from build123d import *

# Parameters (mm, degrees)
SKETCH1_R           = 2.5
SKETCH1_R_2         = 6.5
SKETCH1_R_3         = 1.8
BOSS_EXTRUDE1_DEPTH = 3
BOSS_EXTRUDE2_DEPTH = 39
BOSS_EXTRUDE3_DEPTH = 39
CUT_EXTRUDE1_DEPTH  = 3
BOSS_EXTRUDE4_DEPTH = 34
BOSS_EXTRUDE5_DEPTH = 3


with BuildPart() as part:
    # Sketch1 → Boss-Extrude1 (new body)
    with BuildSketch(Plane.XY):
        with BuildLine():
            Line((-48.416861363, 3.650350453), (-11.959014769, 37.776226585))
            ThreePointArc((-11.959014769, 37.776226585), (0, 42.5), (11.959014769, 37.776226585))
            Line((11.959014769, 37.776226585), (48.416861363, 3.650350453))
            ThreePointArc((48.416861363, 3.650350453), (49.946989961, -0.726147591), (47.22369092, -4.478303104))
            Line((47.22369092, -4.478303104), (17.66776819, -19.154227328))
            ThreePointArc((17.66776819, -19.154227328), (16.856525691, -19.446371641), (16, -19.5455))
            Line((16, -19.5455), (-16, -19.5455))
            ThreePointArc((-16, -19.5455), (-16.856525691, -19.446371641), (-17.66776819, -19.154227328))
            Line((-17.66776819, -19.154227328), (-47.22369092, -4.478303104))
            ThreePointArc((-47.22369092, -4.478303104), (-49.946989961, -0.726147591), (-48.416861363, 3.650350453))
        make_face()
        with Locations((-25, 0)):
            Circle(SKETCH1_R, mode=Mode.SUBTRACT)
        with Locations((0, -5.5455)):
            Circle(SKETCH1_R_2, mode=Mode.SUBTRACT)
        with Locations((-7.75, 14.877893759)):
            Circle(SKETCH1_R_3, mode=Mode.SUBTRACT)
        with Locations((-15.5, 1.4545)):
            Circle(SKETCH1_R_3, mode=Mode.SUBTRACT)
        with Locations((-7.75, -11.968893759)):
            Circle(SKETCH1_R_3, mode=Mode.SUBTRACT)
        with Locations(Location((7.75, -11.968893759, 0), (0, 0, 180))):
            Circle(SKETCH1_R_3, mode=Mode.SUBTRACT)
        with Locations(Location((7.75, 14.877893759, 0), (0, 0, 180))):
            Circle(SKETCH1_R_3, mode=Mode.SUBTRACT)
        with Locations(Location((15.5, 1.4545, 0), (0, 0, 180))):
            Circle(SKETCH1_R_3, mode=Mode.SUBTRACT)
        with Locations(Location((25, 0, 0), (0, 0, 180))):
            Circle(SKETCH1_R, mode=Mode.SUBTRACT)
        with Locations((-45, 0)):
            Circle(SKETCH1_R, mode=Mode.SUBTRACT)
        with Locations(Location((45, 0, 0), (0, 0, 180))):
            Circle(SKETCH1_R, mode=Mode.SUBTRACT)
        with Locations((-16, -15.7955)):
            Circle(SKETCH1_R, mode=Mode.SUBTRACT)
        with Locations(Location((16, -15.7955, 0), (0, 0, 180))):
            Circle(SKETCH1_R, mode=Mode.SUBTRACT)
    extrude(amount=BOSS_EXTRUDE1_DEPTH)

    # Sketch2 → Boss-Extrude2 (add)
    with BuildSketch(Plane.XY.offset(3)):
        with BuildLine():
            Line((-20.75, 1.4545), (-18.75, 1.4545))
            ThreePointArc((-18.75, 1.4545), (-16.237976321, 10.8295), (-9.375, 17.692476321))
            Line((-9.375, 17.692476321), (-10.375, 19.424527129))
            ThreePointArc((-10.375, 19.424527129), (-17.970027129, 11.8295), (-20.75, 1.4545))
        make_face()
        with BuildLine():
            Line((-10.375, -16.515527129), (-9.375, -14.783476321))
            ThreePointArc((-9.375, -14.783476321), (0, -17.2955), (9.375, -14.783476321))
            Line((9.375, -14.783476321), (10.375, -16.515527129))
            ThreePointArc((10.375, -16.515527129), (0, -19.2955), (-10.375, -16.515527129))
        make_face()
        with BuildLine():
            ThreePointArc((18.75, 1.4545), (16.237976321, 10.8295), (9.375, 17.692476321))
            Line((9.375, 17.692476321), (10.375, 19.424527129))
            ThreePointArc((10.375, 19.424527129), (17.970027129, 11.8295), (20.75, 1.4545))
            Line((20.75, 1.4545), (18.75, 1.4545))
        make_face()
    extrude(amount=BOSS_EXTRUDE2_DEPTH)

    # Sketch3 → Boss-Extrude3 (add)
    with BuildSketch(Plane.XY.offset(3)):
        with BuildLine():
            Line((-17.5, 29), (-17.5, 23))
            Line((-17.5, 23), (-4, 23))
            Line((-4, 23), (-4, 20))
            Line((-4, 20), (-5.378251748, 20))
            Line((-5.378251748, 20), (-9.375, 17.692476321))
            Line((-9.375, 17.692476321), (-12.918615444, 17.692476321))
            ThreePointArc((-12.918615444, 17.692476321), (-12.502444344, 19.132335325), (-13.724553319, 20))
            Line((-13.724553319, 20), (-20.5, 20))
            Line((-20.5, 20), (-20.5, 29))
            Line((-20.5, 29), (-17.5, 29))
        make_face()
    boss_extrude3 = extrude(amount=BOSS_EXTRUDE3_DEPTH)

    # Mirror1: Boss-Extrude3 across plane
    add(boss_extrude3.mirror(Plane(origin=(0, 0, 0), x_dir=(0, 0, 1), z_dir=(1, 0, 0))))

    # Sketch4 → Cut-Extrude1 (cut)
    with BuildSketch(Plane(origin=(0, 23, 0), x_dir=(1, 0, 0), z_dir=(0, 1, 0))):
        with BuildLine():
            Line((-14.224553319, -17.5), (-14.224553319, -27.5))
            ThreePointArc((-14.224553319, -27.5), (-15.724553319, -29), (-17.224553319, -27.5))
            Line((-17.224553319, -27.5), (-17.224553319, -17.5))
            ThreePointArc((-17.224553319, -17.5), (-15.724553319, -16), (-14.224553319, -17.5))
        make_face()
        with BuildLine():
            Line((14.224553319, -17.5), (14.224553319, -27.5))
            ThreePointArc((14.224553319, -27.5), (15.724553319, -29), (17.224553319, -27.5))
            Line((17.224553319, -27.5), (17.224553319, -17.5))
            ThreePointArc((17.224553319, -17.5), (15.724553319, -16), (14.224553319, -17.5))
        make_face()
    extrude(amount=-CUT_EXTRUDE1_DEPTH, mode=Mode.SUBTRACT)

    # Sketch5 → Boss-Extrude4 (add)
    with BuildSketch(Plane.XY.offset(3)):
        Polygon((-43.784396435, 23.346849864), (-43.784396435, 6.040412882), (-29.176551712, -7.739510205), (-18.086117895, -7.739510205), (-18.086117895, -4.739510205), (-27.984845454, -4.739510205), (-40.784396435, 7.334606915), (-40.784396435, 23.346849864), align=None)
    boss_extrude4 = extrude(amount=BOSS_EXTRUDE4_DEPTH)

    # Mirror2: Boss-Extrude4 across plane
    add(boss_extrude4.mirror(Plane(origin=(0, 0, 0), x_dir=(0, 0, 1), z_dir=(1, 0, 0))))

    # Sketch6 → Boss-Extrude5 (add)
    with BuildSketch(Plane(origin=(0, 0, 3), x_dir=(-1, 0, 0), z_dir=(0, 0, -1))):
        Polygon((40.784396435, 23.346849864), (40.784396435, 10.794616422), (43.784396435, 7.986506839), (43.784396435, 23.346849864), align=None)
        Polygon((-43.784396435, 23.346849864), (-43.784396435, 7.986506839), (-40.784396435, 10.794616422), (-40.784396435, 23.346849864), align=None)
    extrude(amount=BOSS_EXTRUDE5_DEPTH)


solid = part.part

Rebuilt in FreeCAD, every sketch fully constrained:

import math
import FreeCAD as App
import Part
import Sketcher
from FreeCAD import Vector
Q = App.Units.Quantity


def add_polygon(sketch, points):
    """Adds a closed chain of lines whose ends are joined by coincident constraints."""
    first, n = sketch.GeometryCount, len(points)
    for a, b in zip(points, points[1:] + points[:1]):
        sketch.addGeometry(Part.LineSegment(App.Vector(*a, 0), App.Vector(*b, 0)), False)
    for i in range(n):
        sketch.addConstraint(Sketcher.Constraint("Coincident", first + i, 2, first + (i + 1) % n, 1))

doc = App.newDocument("Part")
body = doc.addObject("PartDesign::Body", "Body")

sketch1 = doc.addObject("Sketcher::SketchObject", "Sketch")
body.addObject(sketch1)
sketch1.AttachmentSupport = (doc.XY_Plane, [""])
sketch1.MapMode = "FlatFace"
sketch1.addGeometry(Part.LineSegment(Vector(-12, 37.8, 0), Vector(-48.4, 3.7, 0)), False)
sketch1.addGeometry(Part.ArcOfCircle(Part.Circle(Vector(-45, 0, 0), Vector(0, 0, 1), 5), math.radians(133), math.radians(244)), False)
sketch1.addGeometry(Part.LineSegment(Vector(-47.2, -4.5, 0), Vector(-17.7, -19.2, 0)), False)
sketch1.addGeometry(Part.ArcOfCircle(Part.Circle(Vector(-16, -15.8, 0), Vector(0, 0, 1), 3.8), math.radians(-116), math.radians(-90)), False)
sketch1.addGeometry(Part.LineSegment(Vector(-16, -19.5, 0), Vector(16, -19.5, 0)), False)
sketch1.addGeometry(Part.ArcOfCircle(Part.Circle(Vector(16, -15.8, 0), Vector(0, 0, 1), 3.8), math.radians(-90), math.radians(-64)), False)
sketch1.addGeometry(Part.LineSegment(Vector(17.7, -19.2, 0), Vector(47.2, -4.5, 0)), False)
sketch1.addGeometry(Part.ArcOfCircle(Part.Circle(Vector(45, 0, 0), Vector(0, 0, 1), 5), math.radians(-64), math.radians(47)), False)
sketch1.addGeometry(Part.LineSegment(Vector(48.4, 3.7, 0), Vector(12, 37.8, 0)), False)
sketch1.addGeometry(Part.ArcOfCircle(Part.Circle(Vector(0, 25, 0), Vector(0, 0, 1), 17.5), math.radians(47), math.radians(133)), False)
sketch1.addGeometry(Part.Circle(Vector(16, -15.8, 0), Vector(0, 0, 1), 2.5), False)
sketch1.addGeometry(Part.Circle(Vector(7.8, -12, 0), Vector(0, 0, 1), 1.8), False)
sketch1.addGeometry(Part.Circle(Vector(-16, -15.8, 0), Vector(0, 0, 1), 2.5), False)
sketch1.addGeometry(Part.Circle(Vector(-7.8, -12, 0), Vector(0, 0, 1), 1.8), False)
sketch1.addGeometry(Part.Circle(Vector(0, -5.5, 0), Vector(0, 0, 1), 6.5), False)
sketch1.addGeometry(Part.Circle(Vector(45, 0, 0), Vector(0, 0, 1), 2.5), False)
sketch1.addGeometry(Part.Circle(Vector(25, 0, 0), Vector(0, 0, 1), 2.5), False)
sketch1.addGeometry(Part.Circle(Vector(15.5, 1.5, 0), Vector(0, 0, 1), 1.8), False)
sketch1.addGeometry(Part.Circle(Vector(7.8, 14.9, 0), Vector(0, 0, 1), 1.8), False)
sketch1.addGeometry(Part.Circle(Vector(-15.5, 1.5, 0), Vector(0, 0, 1), 1.8), False)
sketch1.addGeometry(Part.Circle(Vector(-25, 0, 0), Vector(0, 0, 1), 2.5), False)
sketch1.addGeometry(Part.Circle(Vector(-45, 0, 0), Vector(0, 0, 1), 2.5), False)
sketch1.addGeometry(Part.Circle(Vector(-7.8, 14.9, 0), Vector(0, 0, 1), 1.8), False)
sketch1.addConstraint(Sketcher.Constraint("Tangent", 0, 2, 1, 1))
sketch1.addConstraint(Sketcher.Constraint("Tangent", 1, 2, 2, 1))
sketch1.addConstraint(Sketcher.Constraint("Tangent", 2, 2, 3, 1))
sketch1.addConstraint(Sketcher.Constraint("Tangent", 3, 2, 4, 1))
sketch1.addConstraint(Sketcher.Constraint("Tangent", 4, 2, 5, 1))
sketch1.addConstraint(Sketcher.Constraint("Tangent", 5, 2, 6, 1))
sketch1.addConstraint(Sketcher.Constraint("Tangent", 6, 2, 7, 1))
sketch1.addConstraint(Sketcher.Constraint("Tangent", 7, 2, 8, 1))
sketch1.addConstraint(Sketcher.Constraint("Tangent", 8, 2, 9, 1))
sketch1.addConstraint(Sketcher.Constraint("Tangent", 9, 2, 0, 1))
sketch1.addConstraint(Sketcher.Constraint("Horizontal", 4))
sketch1.addConstraint(Sketcher.Constraint("Coincident", 10, 3, 5, 3))
sketch1.addConstraint(Sketcher.Constraint("Coincident", 12, 3, 3, 3))
sketch1.addConstraint(Sketcher.Constraint("Coincident", 15, 3, 7, 3))
sketch1.addConstraint(Sketcher.Constraint("Coincident", 21, 3, 1, 3))
sketch1.addConstraint(Sketcher.Constraint("Equal", 3, 5))
sketch1.addConstraint(Sketcher.Constraint("Equal", 1, 7))
sketch1.addConstraint(Sketcher.Constraint("Equal", 10, 12))
sketch1.addConstraint(Sketcher.Constraint("Equal", 11, 13))
sketch1.addConstraint(Sketcher.Constraint("Equal", 12, 15))
sketch1.addConstraint(Sketcher.Constraint("Equal", 15, 16))
sketch1.addConstraint(Sketcher.Constraint("Equal", 13, 17))
sketch1.addConstraint(Sketcher.Constraint("Equal", 17, 18))
sketch1.addConstraint(Sketcher.Constraint("Equal", 18, 19))
sketch1.addConstraint(Sketcher.Constraint("Equal", 16, 20))
sketch1.addConstraint(Sketcher.Constraint("Equal", 20, 21))
sketch1.addConstraint(Sketcher.Constraint("Equal", 19, 22))
sketch1.addConstraint(Sketcher.Constraint("Symmetric", 1, 3, 7, 3, -1, 1))
sketch1.addConstraint(Sketcher.Constraint("Symmetric", 16, 3, 20, 3, -1, 1))
sketch1.addConstraint(Sketcher.Constraint("Symmetric", 11, 3, 13, 3, -2))
sketch1.addConstraint(Sketcher.Constraint("Symmetric", 17, 3, 19, 3, -2))
sketch1.addConstraint(Sketcher.Constraint("Symmetric", 18, 3, 22, 3, -2))
sketch1.addConstraint(Sketcher.Constraint("Symmetric", 2, 2, 5, 2, -2))
sketch1.addConstraint(Sketcher.Constraint("PointOnObject", 9, 3, -2))
sketch1.addConstraint(Sketcher.Constraint("PointOnObject", 14, 3, -2))
sketch1.addConstraint(Sketcher.Constraint("PointOnObject", 16, 3, -1))
sketch1.addConstraint(Sketcher.Constraint("Vertical", 11, 3, 18, 3))
sketch1.addConstraint(Sketcher.Constraint("Diameter", 10, Q("5 mm")))
sketch1.addConstraint(Sketcher.Constraint("Diameter", 14, Q("13 mm")))
sketch1.addConstraint(Sketcher.Constraint("Radius", 1, Q("5 mm")))
sketch1.addConstraint(Sketcher.Constraint("Diameter", 11, Q("3.6 mm")))
sketch1.addConstraint(Sketcher.Constraint("Radius", 9, Q("17.5 mm")))
sketch1.addConstraint(Sketcher.Constraint("DistanceX", 4, 1, 4, 2, Q("32 mm")))
sketch1.addConstraint(Sketcher.Constraint("Radius", 3, Q("3.75 mm")))
sketch1.addConstraint(Sketcher.Constraint("DistanceX", 1, 3, -1, 1, Q("45 mm")))
sketch1.addConstraint(Sketcher.Constraint("DistanceY", -1, 1, 9, 3, Q("25 mm")))
sketch1.addConstraint(Sketcher.Constraint("DistanceX", -1, 1, 16, 3, Q("25 mm")))
sketch1.addConstraint(Sketcher.Constraint("DistanceY", 14, 3, 17, 3, Q("7 mm")))
sketch1.addConstraint(Sketcher.Constraint("DistanceY", 3, 2, 19, 3, Q("21 mm")))
sketch1.addConstraint(Sketcher.Constraint("DistanceX", -1, 1, 17, 3, Q("15.5 mm")))
sketch1.addConstraint(Sketcher.Constraint("DistanceX", 13, 3, 11, 3, Q("15.5 mm")))
sketch1.addConstraint(Sketcher.Constraint("DistanceY", 3, 3, -1, 1, Q("15.7955 mm")))
sketch1.addConstraint(Sketcher.Constraint("DistanceY", 11, 3, -1, 1, Q("11.968894 mm")))
sketch1.addConstraint(Sketcher.Constraint("DistanceY", -1, 1, 18, 3, Q("14.877894 mm")))
pad1 = doc.addObject("PartDesign::Pad", "Pad")
body.addObject(pad1)
pad1.Profile = sketch1
pad1.Length = 3

sketch2 = doc.addObject("Sketcher::SketchObject", "Sketch001")
body.addObject(sketch2)
sketch2.AttachmentSupport = (doc.XY_Plane, [""])
sketch2.MapMode = "FlatFace"
sketch2.AttachmentOffset = App.Placement(Vector(0, 0, 3), App.Rotation())
sketch2.addGeometry(Part.LineSegment(Vector(-20.8, 1.5, 0), Vector(-18.8, 1.5, 0)), False)
sketch2.addGeometry(Part.ArcOfCircle(Part.Circle(Vector(0, 1.5, 0), Vector(0, 0, 1), 18.8), math.radians(120), math.radians(180)), False)
sketch2.addGeometry(Part.LineSegment(Vector(-9.4, 17.7, 0), Vector(-10.4, 19.4, 0)), False)
sketch2.addGeometry(Part.ArcOfCircle(Part.Circle(Vector(0, 1.5, 0), Vector(0, 0, 1), 20.7), math.radians(120), math.radians(180)), False)
sketch2.addGeometry(Part.LineSegment(Vector(-9.4, -14.8, 0), Vector(-10.4, -16.5, 0)), False)
sketch2.addGeometry(Part.ArcOfCircle(Part.Circle(Vector(0, 1.5, 0), Vector(0, 0, 1), 20.8), math.radians(-120), math.radians(-60)), False)
sketch2.addGeometry(Part.LineSegment(Vector(10.4, -16.5, 0), Vector(9.4, -14.8, 0)), False)
sketch2.addGeometry(Part.ArcOfCircle(Part.Circle(Vector(0, 1.5, 0), Vector(0, 0, 1), 18.8), math.radians(-120), math.radians(-60)), False)
sketch2.addGeometry(Part.ArcOfCircle(Part.Circle(Vector(0, 1.5, 0), Vector(0, 0, 1), 18.8), math.radians(0), math.radians(60)), False)
sketch2.addGeometry(Part.LineSegment(Vector(18.8, 1.5, 0), Vector(20.8, 1.5, 0)), False)
sketch2.addGeometry(Part.ArcOfCircle(Part.Circle(Vector(0, 1.5, 0), Vector(0, 0, 1), 20.7), math.radians(0), math.radians(60)), False)
sketch2.addGeometry(Part.LineSegment(Vector(10.4, 19.4, 0), Vector(9.4, 17.7, 0)), False)
sketch2.addConstraint(Sketcher.Constraint("Coincident", 0, 2, 1, 2))
sketch2.addConstraint(Sketcher.Constraint("Coincident", 1, 1, 2, 1))
sketch2.addConstraint(Sketcher.Constraint("Coincident", 2, 2, 3, 1))
sketch2.addConstraint(Sketcher.Constraint("Coincident", 3, 2, 0, 1))
sketch2.addConstraint(Sketcher.Constraint("Coincident", 4, 2, 5, 1))
sketch2.addConstraint(Sketcher.Constraint("Coincident", 5, 2, 6, 1))
sketch2.addConstraint(Sketcher.Constraint("Coincident", 6, 2, 7, 2))
sketch2.addConstraint(Sketcher.Constraint("Coincident", 7, 1, 4, 1))
sketch2.addConstraint(Sketcher.Constraint("Coincident", 8, 1, 9, 1))
sketch2.addConstraint(Sketcher.Constraint("Coincident", 9, 2, 10, 1))
sketch2.addConstraint(Sketcher.Constraint("Coincident", 10, 2, 11, 1))
sketch2.addConstraint(Sketcher.Constraint("Coincident", 11, 2, 8, 2))
sketch2.addConstraint(Sketcher.Constraint("Horizontal", 0))
sketch2.addConstraint(Sketcher.Constraint("Horizontal", 9))
sketch2.addConstraint(Sketcher.Constraint("Coincident", 3, 3, 1, 3))
sketch2.addConstraint(Sketcher.Constraint("Coincident", 5, 3, 1, 3))
sketch2.addConstraint(Sketcher.Constraint("Coincident", 7, 3, 1, 3))
sketch2.addConstraint(Sketcher.Constraint("Coincident", 8, 3, 1, 3))
sketch2.addConstraint(Sketcher.Constraint("Coincident", 10, 3, 1, 3))
sketch2.addConstraint(Sketcher.Constraint("Equal", 3, 5))
sketch2.addConstraint(Sketcher.Constraint("Equal", 1, 7))
sketch2.addConstraint(Sketcher.Constraint("Equal", 7, 8))
sketch2.addConstraint(Sketcher.Constraint("Equal", 5, 10))
sketch2.addConstraint(Sketcher.Constraint("Symmetric", 4, 2, 5, 2, -2))
sketch2.addConstraint(Sketcher.Constraint("Parallel", 2, 6))
sketch2.addConstraint(Sketcher.Constraint("Parallel", 4, 11))
sketch2.addConstraint(Sketcher.Constraint("Horizontal", 10, 3, 0, 2))
sketch2.addConstraint(Sketcher.Constraint("Horizontal", 6, 2, 7, 1))
sketch2.addConstraint(Sketcher.Constraint("Horizontal", 3, 2, 8, 1))
sketch2.addConstraint(Sketcher.Constraint("Horizontal", 2, 2, 10, 2))
sketch2.addConstraint(Sketcher.Constraint("Vertical", 2, 2, 4, 2))
sketch2.addConstraint(Sketcher.Constraint("DistanceX", 0, 1, 0, 2, Q("2 mm")))
sketch2.addConstraint(Sketcher.Constraint("Angle", 2, Q("120 deg")))
sketch2.addConstraint(Sketcher.Constraint("Radius", 1, Q("18.75 mm")))
sketch2.addConstraint(Sketcher.Constraint("DistanceX", 4, 2, 5, 2, Q("20.75 mm")))
sketch2.addConstraint(Sketcher.Constraint("DistanceY", -1, 1, 1, 3, Q("1.4545 mm")))
pad2 = doc.addObject("PartDesign::Pad", "Pad001")
body.addObject(pad2)
pad2.Profile = sketch2
pad2.Length = 39

sketch3 = doc.addObject("Sketcher::SketchObject", "Sketch002")
body.addObject(sketch3)
sketch3.AttachmentSupport = (doc.XY_Plane, [""])
sketch3.MapMode = "FlatFace"
sketch3.AttachmentOffset = App.Placement(Vector(0, 0, 3), App.Rotation())
sketch3.addGeometry(Part.LineSegment(Vector(-17.5, 23, 0), Vector(-17.5, 29, 0)), False)
sketch3.addGeometry(Part.LineSegment(Vector(-17.5, 29, 0), Vector(-20.5, 29, 0)), False)
sketch3.addGeometry(Part.LineSegment(Vector(-20.5, 29, 0), Vector(-20.5, 20, 0)), False)
sketch3.addGeometry(Part.LineSegment(Vector(-20.5, 20, 0), Vector(-13.7, 20, 0)), False)
sketch3.addGeometry(Part.ArcOfCircle(Part.Circle(Vector(-13.7, 18.7, 0), Vector(0, 0, 1), 1.3), math.radians(-51), math.radians(90)), False)
sketch3.addGeometry(Part.LineSegment(Vector(-12.9, 17.7, 0), Vector(-9.4, 17.7, 0)), False)
sketch3.addGeometry(Part.LineSegment(Vector(-9.4, 17.7, 0), Vector(-5.4, 20, 0)), False)
sketch3.addGeometry(Part.LineSegment(Vector(-5.4, 20, 0), Vector(-4, 20, 0)), False)
sketch3.addGeometry(Part.LineSegment(Vector(-4, 20, 0), Vector(-4, 23, 0)), False)
sketch3.addGeometry(Part.LineSegment(Vector(-4, 23, 0), Vector(-17.5, 23, 0)), False)
sketch3.addConstraint(Sketcher.Constraint("Coincident", 0, 2, 1, 1))
sketch3.addConstraint(Sketcher.Constraint("Coincident", 1, 2, 2, 1))
sketch3.addConstraint(Sketcher.Constraint("Coincident", 2, 2, 3, 1))
sketch3.addConstraint(Sketcher.Constraint("Tangent", 3, 2, 4, 2))
sketch3.addConstraint(Sketcher.Constraint("Coincident", 4, 1, 5, 1))
sketch3.addConstraint(Sketcher.Constraint("Coincident", 5, 2, 6, 1))
sketch3.addConstraint(Sketcher.Constraint("Coincident", 6, 2, 7, 1))
sketch3.addConstraint(Sketcher.Constraint("Coincident", 7, 2, 8, 1))
sketch3.addConstraint(Sketcher.Constraint("Coincident", 8, 2, 9, 1))
sketch3.addConstraint(Sketcher.Constraint("Coincident", 9, 2, 0, 1))
sketch3.addConstraint(Sketcher.Constraint("Vertical", 0))
sketch3.addConstraint(Sketcher.Constraint("Horizontal", 1))
sketch3.addConstraint(Sketcher.Constraint("Vertical", 2))
sketch3.addConstraint(Sketcher.Constraint("Horizontal", 3))
sketch3.addConstraint(Sketcher.Constraint("Horizontal", 5))
sketch3.addConstraint(Sketcher.Constraint("Horizontal", 7))
sketch3.addConstraint(Sketcher.Constraint("Vertical", 8))
sketch3.addConstraint(Sketcher.Constraint("Horizontal", 9))
sketch3.addConstraint(Sketcher.Constraint("Horizontal", 3, 2, 6, 2))
sketch3.addConstraint(Sketcher.Constraint("Equal", 1, 8))
sketch3.addConstraint(Sketcher.Constraint("DistanceX", 1, 2, 1, 1, Q("3 mm")))
sketch3.addConstraint(Sketcher.Constraint("DistanceY", 0, 1, 0, 2, Q("6 mm")))
sketch3.addConstraint(Sketcher.Constraint("Angle", 6, Q("30 deg")))
sketch3.addConstraint(Sketcher.Constraint("DistanceX", 9, 2, 9, 1, Q("13.5 mm")))
sketch3.addConstraint(Sketcher.Constraint("DistanceY", -1, 1, 0, 2, Q("29 mm")))
sketch3.addConstraint(Sketcher.Constraint("DistanceX", 7, 2, -1, 1, Q("4 mm")))
sketch3.addConstraint(Sketcher.Constraint("DistanceX", 5, 2, -1, 1, Q("9.375 mm")))
sketch3.addConstraint(Sketcher.Constraint("Radius", 4, Q("1.294505 mm")))
sketch3.addConstraint(Sketcher.Constraint("DistanceX", 7, 1, 7, 2, Q("1.378252 mm")))
sketch3.addConstraint(Sketcher.Constraint("DistanceX", 3, 2, 6, 2, Q("8.346302 mm")))
pad3 = doc.addObject("PartDesign::Pad", "Pad002")
body.addObject(pad3)
pad3.Profile = sketch3
pad3.Length = 39
doc.recompute()

mirrored = doc.addObject("PartDesign::Mirrored", "Mirrored")
body.addObject(mirrored)
mirrored.Originals = [pad3]
mirrored.MirrorPlane = (doc.YZ_Plane, [""])
body.Tip = mirrored

sketch4 = doc.addObject("Sketcher::SketchObject", "Sketch003")
body.addObject(sketch4)
sketch4.AttachmentSupport = (doc.XZ_Plane, [""])
sketch4.MapMode = "FlatFace"
sketch4.AttachmentOffset = App.Placement(Vector(0, 0, -23), App.Rotation())
sketch4.addGeometry(Part.LineSegment(Vector(-14.2, 27.5, 0), Vector(-14.2, 17.5, 0)), False)
sketch4.addGeometry(Part.ArcOfCircle(Part.Circle(Vector(-15.7, 17.5, 0), Vector(0, 0, 1), 1.5), math.radians(180), math.radians(360)), False)
sketch4.addGeometry(Part.LineSegment(Vector(-17.2, 17.5, 0), Vector(-17.2, 27.5, 0)), False)
sketch4.addGeometry(Part.ArcOfCircle(Part.Circle(Vector(-15.7, 27.5, 0), Vector(0, 0, 1), 1.5), math.radians(0), math.radians(180)), False)
sketch4.addGeometry(Part.LineSegment(Vector(14.2, 17.5, 0), Vector(14.2, 27.5, 0)), False)
sketch4.addGeometry(Part.ArcOfCircle(Part.Circle(Vector(15.7, 27.5, 0), Vector(0, 0, 1), 1.5), math.radians(0), math.radians(180)), False)
sketch4.addGeometry(Part.LineSegment(Vector(17.2, 27.5, 0), Vector(17.2, 17.5, 0)), False)
sketch4.addGeometry(Part.ArcOfCircle(Part.Circle(Vector(15.7, 17.5, 0), Vector(0, 0, 1), 1.5), math.radians(180), math.radians(360)), False)
sketch4.addConstraint(Sketcher.Constraint("Tangent", 0, 2, 1, 2))
sketch4.addConstraint(Sketcher.Constraint("Tangent", 1, 1, 2, 1))
sketch4.addConstraint(Sketcher.Constraint("Tangent", 2, 2, 3, 2))
sketch4.addConstraint(Sketcher.Constraint("Tangent", 3, 1, 0, 1))
sketch4.addConstraint(Sketcher.Constraint("Tangent", 4, 2, 5, 2))
sketch4.addConstraint(Sketcher.Constraint("Tangent", 5, 1, 6, 1))
sketch4.addConstraint(Sketcher.Constraint("Tangent", 6, 2, 7, 2))
sketch4.addConstraint(Sketcher.Constraint("Tangent", 7, 1, 4, 1))
sketch4.addConstraint(Sketcher.Constraint("Vertical", 0))
sketch4.addConstraint(Sketcher.Constraint("Vertical", 2))
sketch4.addConstraint(Sketcher.Constraint("Vertical", 4))
sketch4.addConstraint(Sketcher.Constraint("Vertical", 6))
sketch4.addConstraint(Sketcher.Constraint("Equal", 3, 5))
sketch4.addConstraint(Sketcher.Constraint("Symmetric", 3, 3, 5, 3, -2))
sketch4.addConstraint(Sketcher.Constraint("Horizontal", 1, 3, 7, 3))
sketch4.addConstraint(Sketcher.Constraint("Radius", 1, Q("1.5 mm")))
sketch4.addConstraint(Sketcher.Constraint("DistanceY", 0, 2, 0, 1, Q("10 mm")))
sketch4.addConstraint(Sketcher.Constraint("DistanceY", -1, 1, 1, 3, Q("17.5 mm")))
sketch4.addConstraint(Sketcher.Constraint("DistanceX", 1, 3, -1, 1, Q("15.724553 mm")))
pocket1 = doc.addObject("PartDesign::Pocket", "Pocket")
body.addObject(pocket1)
pocket1.Profile = sketch4
pocket1.Length = 3
pocket1.Reversed = True

sketch5 = doc.addObject("Sketcher::SketchObject", "Sketch004")
body.addObject(sketch5)
sketch5.AttachmentSupport = (doc.XY_Plane, [""])
sketch5.MapMode = "FlatFace"
sketch5.AttachmentOffset = App.Placement(Vector(0, 0, 3), App.Rotation())
add_polygon(sketch5, [(-43.8, 23.3), (-43.8, 6), (-29.2, -7.7), (-18.1, -7.7), (-18.1, -4.7), (-28, -4.7), (-40.8, 7.3), (-40.8, 23.3)])
sketch5.addConstraint(Sketcher.Constraint("Vertical", 0))
sketch5.addConstraint(Sketcher.Constraint("Horizontal", 2))
sketch5.addConstraint(Sketcher.Constraint("Vertical", 3))
sketch5.addConstraint(Sketcher.Constraint("Horizontal", 4))
sketch5.addConstraint(Sketcher.Constraint("Vertical", 6))
sketch5.addConstraint(Sketcher.Constraint("Horizontal", 7))
sketch5.addConstraint(Sketcher.Constraint("Parallel", 1, 5))
sketch5.addConstraint(Sketcher.Constraint("Equal", 7, 3))
sketch5.addConstraint(Sketcher.Constraint("DistanceX", 7, 2, 7, 1, Q("3 mm")))
sketch5.addConstraint(Sketcher.Constraint("Distance", 1, Q("20.081718 mm")))
sketch5.addConstraint(Sketcher.Constraint("DistanceX", 2, 1, 2, 2, Q("11.090434 mm")))
sketch5.addConstraint(Sketcher.Constraint("DistanceX", 4, 2, 4, 1, Q("9.898728 mm")))
sketch5.addConstraint(Sketcher.Constraint("DistanceY", 0, 2, 0, 1, Q("17.306437 mm")))
sketch5.addConstraint(Sketcher.Constraint("DistanceY", 6, 1, 6, 2, Q("16.012243 mm")))
sketch5.addConstraint(Sketcher.Constraint("DistanceX", 1, 2, -1, 1, Q("29.176552 mm")))
sketch5.addConstraint(Sketcher.Constraint("DistanceY", 1, 2, -1, 1, Q("7.73951 mm")))
pad4 = doc.addObject("PartDesign::Pad", "Pad003")
body.addObject(pad4)
pad4.Profile = sketch5
pad4.Length = 34
doc.recompute()

mirrored2 = doc.addObject("PartDesign::Mirrored", "Mirrored001")
body.addObject(mirrored2)
mirrored2.Originals = [pad4]
mirrored2.MirrorPlane = (doc.YZ_Plane, [""])
body.Tip = mirrored2

sketch6 = doc.addObject("Sketcher::SketchObject", "Sketch005")
body.addObject(sketch6)
sketch6.AttachmentSupport = (doc.XY_Plane, [""])
sketch6.MapMode = "FlatFace"
sketch6.AttachmentOffset = App.Placement(Vector(0, 0, 3), App.Rotation())
add_polygon(sketch6, [(-40.8, 23.3), (-40.8, 10.8), (-43.8, 8), (-43.8, 23.3)])
add_polygon(sketch6, [(43.8, 23.3), (43.8, 8), (40.8, 10.8), (40.8, 23.3)])
sketch6.addConstraint(Sketcher.Constraint("Vertical", 0))
sketch6.addConstraint(Sketcher.Constraint("Vertical", 2))
sketch6.addConstraint(Sketcher.Constraint("Horizontal", 3))
sketch6.addConstraint(Sketcher.Constraint("Vertical", 4))
sketch6.addConstraint(Sketcher.Constraint("Vertical", 6))
sketch6.addConstraint(Sketcher.Constraint("Horizontal", 7))
sketch6.addConstraint(Sketcher.Constraint("Symmetric", 1, 2, 4, 2, -2))
sketch6.addConstraint(Sketcher.Constraint("Symmetric", 0, 2, 5, 2, -2))
sketch6.addConstraint(Sketcher.Constraint("Horizontal", 3, 2, 6, 2))
sketch6.addConstraint(Sketcher.Constraint("DistanceX", 3, 1, 3, 2, Q("3 mm")))
sketch6.addConstraint(Sketcher.Constraint("DistanceY", 0, 2, 0, 1, Q("12.552233 mm")))
sketch6.addConstraint(Sketcher.Constraint("DistanceY", 2, 1, 2, 2, Q("15.360343 mm")))
sketch6.addConstraint(Sketcher.Constraint("DistanceY", -1, 1, 2, 2, Q("23.34685 mm")))
sketch6.addConstraint(Sketcher.Constraint("DistanceX", 0, 2, -1, 1, Q("40.784396 mm")))
pad5 = doc.addObject("PartDesign::Pad", "Pad004")
body.addObject(pad5)
pad5.Profile = sketch6
pad5.Length = 3
pad5.Reversed = True

doc.recompute()
